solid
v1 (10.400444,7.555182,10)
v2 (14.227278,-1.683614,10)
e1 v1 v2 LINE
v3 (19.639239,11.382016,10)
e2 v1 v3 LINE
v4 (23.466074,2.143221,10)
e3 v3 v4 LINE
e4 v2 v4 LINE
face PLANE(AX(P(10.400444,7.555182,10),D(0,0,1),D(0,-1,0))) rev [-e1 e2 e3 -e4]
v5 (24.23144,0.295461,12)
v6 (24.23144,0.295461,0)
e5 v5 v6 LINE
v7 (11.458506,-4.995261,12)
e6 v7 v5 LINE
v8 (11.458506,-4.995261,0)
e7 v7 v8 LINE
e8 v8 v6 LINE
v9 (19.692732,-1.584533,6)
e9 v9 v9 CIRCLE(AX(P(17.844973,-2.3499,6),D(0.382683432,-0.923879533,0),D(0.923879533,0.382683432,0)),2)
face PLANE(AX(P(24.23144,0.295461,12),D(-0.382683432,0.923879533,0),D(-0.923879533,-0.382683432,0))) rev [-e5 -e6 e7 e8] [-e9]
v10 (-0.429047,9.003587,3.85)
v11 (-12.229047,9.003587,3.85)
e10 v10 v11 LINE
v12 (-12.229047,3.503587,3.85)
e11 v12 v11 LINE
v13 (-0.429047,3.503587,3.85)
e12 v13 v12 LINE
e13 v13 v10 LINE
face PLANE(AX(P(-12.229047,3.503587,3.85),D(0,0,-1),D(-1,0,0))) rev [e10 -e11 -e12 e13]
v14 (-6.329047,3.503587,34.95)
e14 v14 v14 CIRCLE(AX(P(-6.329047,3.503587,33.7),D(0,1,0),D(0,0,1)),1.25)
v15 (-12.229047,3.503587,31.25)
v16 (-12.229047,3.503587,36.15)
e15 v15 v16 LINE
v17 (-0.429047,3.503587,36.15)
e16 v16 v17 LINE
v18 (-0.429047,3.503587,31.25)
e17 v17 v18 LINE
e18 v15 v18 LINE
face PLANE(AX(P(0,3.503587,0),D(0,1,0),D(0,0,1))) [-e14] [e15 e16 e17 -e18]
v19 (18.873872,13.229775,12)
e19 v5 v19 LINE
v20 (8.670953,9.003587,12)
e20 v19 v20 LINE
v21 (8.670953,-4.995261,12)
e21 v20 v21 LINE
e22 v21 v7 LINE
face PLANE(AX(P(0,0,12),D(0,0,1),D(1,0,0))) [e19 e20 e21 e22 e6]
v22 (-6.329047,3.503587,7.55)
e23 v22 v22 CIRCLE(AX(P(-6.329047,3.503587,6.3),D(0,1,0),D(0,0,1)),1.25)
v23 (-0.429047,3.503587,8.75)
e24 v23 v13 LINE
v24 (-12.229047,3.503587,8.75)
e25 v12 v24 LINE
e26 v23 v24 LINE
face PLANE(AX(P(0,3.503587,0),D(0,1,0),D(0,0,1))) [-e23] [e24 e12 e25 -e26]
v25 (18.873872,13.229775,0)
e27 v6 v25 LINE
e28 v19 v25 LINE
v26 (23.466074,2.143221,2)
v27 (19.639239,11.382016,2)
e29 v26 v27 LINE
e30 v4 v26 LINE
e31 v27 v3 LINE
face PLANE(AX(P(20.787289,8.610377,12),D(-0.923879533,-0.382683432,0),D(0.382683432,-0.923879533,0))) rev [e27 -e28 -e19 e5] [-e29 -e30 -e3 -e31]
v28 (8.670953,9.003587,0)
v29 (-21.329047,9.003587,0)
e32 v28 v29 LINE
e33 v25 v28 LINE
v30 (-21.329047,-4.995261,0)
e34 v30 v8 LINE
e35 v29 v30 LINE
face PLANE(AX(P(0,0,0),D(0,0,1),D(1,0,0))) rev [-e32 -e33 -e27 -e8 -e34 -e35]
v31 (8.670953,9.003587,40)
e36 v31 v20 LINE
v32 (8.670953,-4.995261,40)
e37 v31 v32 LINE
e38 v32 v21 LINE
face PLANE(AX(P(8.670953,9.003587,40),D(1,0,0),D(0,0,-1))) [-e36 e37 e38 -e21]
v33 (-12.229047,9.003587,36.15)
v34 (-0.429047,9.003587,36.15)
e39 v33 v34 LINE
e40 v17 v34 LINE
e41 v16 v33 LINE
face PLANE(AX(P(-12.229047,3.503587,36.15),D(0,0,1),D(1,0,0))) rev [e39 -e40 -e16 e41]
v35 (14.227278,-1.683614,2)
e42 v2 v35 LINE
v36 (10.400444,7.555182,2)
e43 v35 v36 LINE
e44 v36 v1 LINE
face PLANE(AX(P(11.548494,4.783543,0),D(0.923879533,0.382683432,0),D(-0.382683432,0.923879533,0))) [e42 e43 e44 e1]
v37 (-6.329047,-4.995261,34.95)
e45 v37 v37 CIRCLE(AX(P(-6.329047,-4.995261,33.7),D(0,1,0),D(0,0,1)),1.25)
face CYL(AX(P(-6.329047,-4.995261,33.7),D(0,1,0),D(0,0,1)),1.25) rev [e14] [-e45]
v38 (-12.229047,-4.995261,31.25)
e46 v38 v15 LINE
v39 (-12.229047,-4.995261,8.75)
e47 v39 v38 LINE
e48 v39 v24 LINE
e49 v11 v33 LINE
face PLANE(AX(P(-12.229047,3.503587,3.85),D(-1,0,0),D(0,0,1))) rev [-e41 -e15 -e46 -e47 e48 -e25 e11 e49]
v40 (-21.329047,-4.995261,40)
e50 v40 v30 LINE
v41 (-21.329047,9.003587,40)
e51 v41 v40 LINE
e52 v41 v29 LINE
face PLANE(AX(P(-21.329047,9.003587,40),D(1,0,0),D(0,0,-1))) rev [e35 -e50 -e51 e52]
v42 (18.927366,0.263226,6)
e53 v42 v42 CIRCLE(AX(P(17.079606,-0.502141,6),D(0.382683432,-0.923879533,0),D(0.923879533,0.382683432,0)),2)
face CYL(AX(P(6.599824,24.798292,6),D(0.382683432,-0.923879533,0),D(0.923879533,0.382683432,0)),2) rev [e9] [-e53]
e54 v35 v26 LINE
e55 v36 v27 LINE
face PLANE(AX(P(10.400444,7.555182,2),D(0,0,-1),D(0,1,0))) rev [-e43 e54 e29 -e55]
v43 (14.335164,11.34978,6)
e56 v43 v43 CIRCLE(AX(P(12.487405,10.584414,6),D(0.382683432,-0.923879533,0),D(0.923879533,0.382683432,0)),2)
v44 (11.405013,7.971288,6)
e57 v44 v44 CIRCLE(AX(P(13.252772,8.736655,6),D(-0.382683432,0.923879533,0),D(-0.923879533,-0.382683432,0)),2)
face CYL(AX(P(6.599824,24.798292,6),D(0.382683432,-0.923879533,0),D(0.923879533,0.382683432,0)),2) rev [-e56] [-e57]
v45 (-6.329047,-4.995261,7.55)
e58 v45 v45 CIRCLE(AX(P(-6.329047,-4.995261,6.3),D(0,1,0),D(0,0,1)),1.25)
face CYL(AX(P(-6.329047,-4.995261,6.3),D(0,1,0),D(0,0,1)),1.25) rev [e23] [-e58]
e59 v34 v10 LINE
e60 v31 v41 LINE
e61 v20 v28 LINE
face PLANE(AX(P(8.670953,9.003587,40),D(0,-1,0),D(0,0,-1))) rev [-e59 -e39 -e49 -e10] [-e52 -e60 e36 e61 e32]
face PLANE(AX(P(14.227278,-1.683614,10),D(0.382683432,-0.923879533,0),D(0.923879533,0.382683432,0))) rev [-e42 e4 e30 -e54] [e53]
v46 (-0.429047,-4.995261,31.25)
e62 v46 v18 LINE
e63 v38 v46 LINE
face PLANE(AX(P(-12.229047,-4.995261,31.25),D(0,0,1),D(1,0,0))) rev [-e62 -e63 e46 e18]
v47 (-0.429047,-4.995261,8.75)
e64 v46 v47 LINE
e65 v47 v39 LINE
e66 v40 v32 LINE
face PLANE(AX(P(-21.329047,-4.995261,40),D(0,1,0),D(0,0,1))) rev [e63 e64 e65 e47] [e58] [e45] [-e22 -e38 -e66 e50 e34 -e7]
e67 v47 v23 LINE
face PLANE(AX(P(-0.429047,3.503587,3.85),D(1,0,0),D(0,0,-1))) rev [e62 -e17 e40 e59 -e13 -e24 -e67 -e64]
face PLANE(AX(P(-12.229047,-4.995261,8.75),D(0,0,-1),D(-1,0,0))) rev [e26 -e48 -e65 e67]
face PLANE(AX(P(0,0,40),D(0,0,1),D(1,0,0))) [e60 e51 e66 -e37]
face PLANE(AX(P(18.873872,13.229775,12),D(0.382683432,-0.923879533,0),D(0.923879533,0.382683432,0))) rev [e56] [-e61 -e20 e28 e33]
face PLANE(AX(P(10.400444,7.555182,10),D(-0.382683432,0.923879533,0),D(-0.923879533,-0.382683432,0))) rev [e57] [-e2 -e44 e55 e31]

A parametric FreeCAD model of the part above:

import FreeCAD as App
import Part
import Sketcher
Q = App.Units.Quantity

doc = App.newDocument("Part")
body = doc.addObject("PartDesign::Body", "Body")

sketch1 = body.newObject("Sketcher::SketchObject", "Sketch")
sketch1.AttachmentSupport = (doc.getObject("XY_Plane"), [""])
sketch1.MapMode = "FlatFace"
sketch1.addGeometry([
    Part.LineSegment(App.Vector(8.670953, 9.003587, 0), App.Vector(-21.329047, 9.003587, 0)),
    Part.LineSegment(App.Vector(-21.329047, 9.003587, 0), App.Vector(-21.329047, -4.995261, 0)),
    Part.LineSegment(App.Vector(-21.329047, -4.995261, 0), App.Vector(8.670953, -4.995261, 0)),
    Part.LineSegment(App.Vector(8.670953, -4.995261, 0), App.Vector(8.670953, 9.003587, 0)),
], False)
sketch1.addConstraint([
    Sketcher.Constraint("Coincident", 0, 2, 1, 1),
    Sketcher.Constraint("Coincident", 1, 2, 2, 1),
    Sketcher.Constraint("Coincident", 2, 2, 3, 1),
    Sketcher.Constraint("Coincident", 3, 2, 0, 1),
    Sketcher.Constraint("Horizontal", 0),
    Sketcher.Constraint("Vertical", 1),
    Sketcher.Constraint("Horizontal", 2),
    Sketcher.Constraint("Vertical", 3),
    Sketcher.Constraint("DistanceX", 0, 2, 0, 1, Q("30 mm")),
    Sketcher.Constraint("DistanceY", 1, 2, 1, 1, Q("13.998848 mm")),
    Sketcher.Constraint("DistanceY", 1, 2, -1, 1, Q("4.995261 mm")),
    Sketcher.Constraint("DistanceX", 0, 2, -1, 1, Q("21.329047 mm")),
])
pad1 = body.newObject("PartDesign::Pad", "Pad")
pad1.Profile = sketch1
pad1.Length = 40

sketch2 = body.newObject("Sketcher::SketchObject", "Sketch001")
sketch2.AttachmentSupport = (doc.getObject("XZ_Plane"), [""])
sketch2.MapMode = "FlatFace"
sketch2.AttachmentOffset = App.Placement(App.Vector(0, 0, -9.003587), App.Rotation())
sketch2.addGeometry([
    Part.LineSegment(App.Vector(-12.229047, 3.85, 0), App.Vector(-12.229047, 36.15, 0)),
    Part.LineSegment(App.Vector(-12.229047, 36.15, 0), App.Vector(-0.429047, 36.15, 0)),
    Part.LineSegment(App.Vector(-0.429047, 36.15, 0), App.Vector(-0.429047, 3.85, 0)),
    Part.LineSegment(App.Vector(-0.429047, 3.85, 0), App.Vector(-12.229047, 3.85, 0)),
], False)
sketch2.addConstraint([
    Sketcher.Constraint("Coincident", 0, 2, 1, 1),
    Sketcher.Constraint("Coincident", 1, 2, 2, 1),
    Sketcher.Constraint("Coincident", 2, 2, 3, 1),
    Sketcher.Constraint("Coincident", 3, 2, 0, 1),
    Sketcher.Constraint("Vertical", 0),
    Sketcher.Constraint("Horizontal", 1),
    Sketcher.Constraint("Vertical", 2),
    Sketcher.Constraint("Horizontal", 3),
    Sketcher.Constraint("DistanceX", 1, 1, 1, 2, Q("11.8 mm")),
    Sketcher.Constraint("DistanceY", 0, 1, 0, 2, Q("32.3 mm")),
    Sketcher.Constraint("DistanceY", -1, 1, 0, 2, Q("36.15 mm")),
    Sketcher.Constraint("DistanceX", 0, 2, -1, 1, Q("12.229047 mm")),
])
pocket1 = body.newObject("PartDesign::Pocket", "Pocket")
pocket1.Profile = sketch2
pocket1.Length = 5.5
pocket1.Reversed = True

sketch3 = body.newObject("Sketcher::SketchObject", "Sketch002")
sketch3.AttachmentSupport = (doc.getObject("XZ_Plane"), [""])
sketch3.MapMode = "FlatFace"
sketch3.AttachmentOffset = App.Placement(App.Vector(0, 0, -3.503587), App.Rotation())
sketch3.addGeometry([
    Part.LineSegment(App.Vector(-12.229047, 8.75, 0), App.Vector(-12.229047, 31.25, 0)),
    Part.LineSegment(App.Vector(-12.229047, 31.25, 0), App.Vector(-0.429047, 31.25, 0)),
    Part.LineSegment(App.Vector(-0.429047, 31.25, 0), App.Vector(-0.429047, 8.75, 0)),
    Part.LineSegment(App.Vector(-0.429047, 8.75, 0), App.Vector(-12.229047, 8.75, 0)),
], False)
sketch3.addConstraint([
    Sketcher.Constraint("Coincident", 0, 2, 1, 1),
    Sketcher.Constraint("Coincident", 1, 2, 2, 1),
    Sketcher.Constraint("Coincident", 2, 2, 3, 1),
    Sketcher.Constraint("Coincident", 3, 2, 0, 1),
    Sketcher.Constraint("Vertical", 0),
    Sketcher.Constraint("Horizontal", 1),
    Sketcher.Constraint("Vertical", 2),
    Sketcher.Constraint("Horizontal", 3),
    Sketcher.Constraint("DistanceX", 1, 1, 1, 2, Q("11.8 mm")),
    Sketcher.Constraint("DistanceY", 0, 1, 0, 2, Q("22.5 mm")),
    Sketcher.Constraint("DistanceY", -1, 1, 0, 2, Q("31.25 mm")),
    Sketcher.Constraint("DistanceX", 0, 2, -1, 1, Q("12.229047 mm")),
])
pocket2 = body.newObject("PartDesign::Pocket", "Pocket001")
pocket2.Profile = sketch3
pocket2.Type = "ThroughAll"
pocket2.Reversed = True

sketch4 = body.newObject("Sketcher::SketchObject", "Sketch003")
sketch4.AttachmentSupport = (doc.getObject("XZ_Plane"), [""])
sketch4.MapMode = "FlatFace"
sketch4.AttachmentOffset = App.Placement(App.Vector(0, 0, -3.503587), App.Rotation())
sketch4.addGeometry([
    Part.Circle(App.Vector(-6.329047, 6.3, 0), App.Vector(0, 0, 1), 1.25),
    Part.Circle(App.Vector(-6.329047, 33.7, 0), App.Vector(0, 0, 1), 1.25),
], False)
sketch4.addConstraint([
    Sketcher.Constraint("Equal", 0, 1),
    Sketcher.Constraint("Vertical", 0, 3, 1, 3),
    Sketcher.Constraint("Diameter", 0, Q("2.5 mm")),
    Sketcher.Constraint("DistanceY", -1, 1, 0, 3, Q("6.3 mm")),
    Sketcher.Constraint("DistanceY", -1, 1, 1, 3, Q("33.7 mm")),
    Sketcher.Constraint("DistanceX", 0, 3, -1, 1, Q("6.329047 mm")),
])
pocket3 = body.newObject("PartDesign::Pocket", "Pocket002")
pocket3.Profile = sketch4
pocket3.Type = "ThroughAll"
pocket3.Reversed = True

sketch5 = body.newObject("Sketcher::SketchObject", "Sketch004")
sketch5.AttachmentSupport = (doc.getObject("XY_Plane"), [""])
sketch5.MapMode = "FlatFace"
sketch5.addGeometry([
    Part.LineSegment(App.Vector(8.670953, 9.003587, 0), App.Vector(8.670953, -4.995261, 0)),
    Part.LineSegment(App.Vector(8.670953, -4.995261, 0), App.Vector(11.458506, -4.995261, 0)),
    Part.LineSegment(App.Vector(11.458506, -4.995261, 0), App.Vector(24.23144, 0.295461, 0)),
    Part.LineSegment(App.Vector(24.23144, 0.295461, 0), App.Vector(20.787289, 8.610377, 0)),
    Part.LineSegment(App.Vector(20.787289, 8.610377, 0), App.Vector(18.873872, 13.229775, 0)),
    Part.LineSegment(App.Vector(18.873872, 13.229775, 0), App.Vector(8.670953, 9.003587, 0)),
], False)
sketch5.addConstraint([
    Sketcher.Constraint("Coincident", 0, 2, 1, 1),
    Sketcher.Constraint("Coincident", 1, 2, 2, 1),
    Sketcher.Constraint("Coincident", 2, 2, 3, 1),
    Sketcher.Constraint("Coincident", 3, 2, 4, 1),
    Sketcher.Constraint("Coincident", 4, 2, 5, 1),
    Sketcher.Constraint("Coincident", 5, 2, 0, 1),
    Sketcher.Constraint("Vertical", 0),
    Sketcher.Constraint("Horizontal", 1),
    Sketcher.Constraint("Perpendicular", 2, 3),
    Sketcher.Constraint("Parallel", 3, 4),
    Sketcher.Constraint("Perpendicular", 4, 5),
    Sketcher.Constraint("Distance", 3, Q("9 mm")),
    Sketcher.Constraint("Distance", 4, Q("5 mm")),
    Sketcher.Constraint("Angle", 2, Q("22.5 deg")),
    Sketcher.Constraint("DistanceY", 0, 2, 0, 1, Q("13.998848 mm")),
    Sketcher.Constraint("Distance", 5, Q("11.043561 mm")),
    Sketcher.Constraint("DistanceY", 0, 2, -1, 1, Q("4.995261 mm")),
    Sketcher.Constraint("DistanceX", -1, 1, 2, 2, Q("24.23144 mm")),
])
pad2 = body.newObject("PartDesign::Pad", "Pad001")
pad2.Profile = sketch5
pad2.Length = 12

sketch6 = body.newObject("Sketcher::SketchObject", "Sketch005")
sketch6.Placement = App.Placement(App.Vector(20.787289, 8.610377, 0), App.Rotation(App.Vector(0, 0, -1), App.Vector(-0.382683432, 0.923879533, 0), App.Vector(0.923879533, 0.382683432, 0), "ZXY"))
sketch6.addGeometry([
    Part.LineSegment(App.Vector(-10, 3, 0), App.Vector(-10, -7, 0)),
    Part.LineSegment(App.Vector(-10, -7, 0), App.Vector(-2, -7, 0)),
    Part.LineSegment(App.Vector(-2, -7, 0), App.Vector(-2, 3, 0)),
    Part.LineSegment(App.Vector(-2, 3, 0), App.Vector(-10, 3, 0)),
], False)
sketch6.addConstraint([
    Sketcher.Constraint("Coincident", 0, 2, 1, 1),
    Sketcher.Constraint("Coincident", 1, 2, 2, 1),
    Sketcher.Constraint("Coincident", 2, 2, 3, 1),
    Sketcher.Constraint("Coincident", 3, 2, 0, 1),
    Sketcher.Constraint("Vertical", 0),
    Sketcher.Constraint("Horizontal", 1),
    Sketcher.Constraint("Vertical", 2),
    Sketcher.Constraint("Horizontal", 3),
    Sketcher.Constraint("DistanceX", 1, 1, 1, 2, Q("8 mm")),
    Sketcher.Constraint("DistanceY", 0, 2, 0, 1, Q("10 mm")),
    Sketcher.Constraint("DistanceX", 0, 2, -1, 1, Q("10 mm")),
    Sketcher.Constraint("DistanceY", 0, 2, -1, 1, Q("7 mm")),
])
pocket4 = body.newObject("PartDesign::Pocket", "Pocket003")
pocket4.Profile = sketch6
pocket4.Length = 10

sketch7 = body.newObject("Sketcher::SketchObject", "Sketch006")
sketch7.Placement = App.Placement(App.Vector(3.444151, -8.314916, 0), App.Rotation(App.Vector(0.923879533, 0.382683432, 0), App.Vector(0, 0, 1.000000001), App.Vector(0.382683432, -0.923879533, 0), "ZXY"))
sketch7.addGeometry(Part.Circle(App.Vector(15.587338, 6, 0), App.Vector(0, 0, 1), 2), False)
sketch7.addConstraint([
    Sketcher.Constraint("Diameter", 0, Q("4 mm")),
    Sketcher.Constraint("DistanceY", -1, 1, 0, 3, Q("6 mm")),
    Sketcher.Constraint("DistanceX", -1, 1, 0, 3, Q("15.587338 mm")),
])
pocket5 = body.newObject("PartDesign::Pocket", "Pocket004")
pocket5.Profile = sketch7
pocket5.Type = "ThroughAll"

doc.recompute()
